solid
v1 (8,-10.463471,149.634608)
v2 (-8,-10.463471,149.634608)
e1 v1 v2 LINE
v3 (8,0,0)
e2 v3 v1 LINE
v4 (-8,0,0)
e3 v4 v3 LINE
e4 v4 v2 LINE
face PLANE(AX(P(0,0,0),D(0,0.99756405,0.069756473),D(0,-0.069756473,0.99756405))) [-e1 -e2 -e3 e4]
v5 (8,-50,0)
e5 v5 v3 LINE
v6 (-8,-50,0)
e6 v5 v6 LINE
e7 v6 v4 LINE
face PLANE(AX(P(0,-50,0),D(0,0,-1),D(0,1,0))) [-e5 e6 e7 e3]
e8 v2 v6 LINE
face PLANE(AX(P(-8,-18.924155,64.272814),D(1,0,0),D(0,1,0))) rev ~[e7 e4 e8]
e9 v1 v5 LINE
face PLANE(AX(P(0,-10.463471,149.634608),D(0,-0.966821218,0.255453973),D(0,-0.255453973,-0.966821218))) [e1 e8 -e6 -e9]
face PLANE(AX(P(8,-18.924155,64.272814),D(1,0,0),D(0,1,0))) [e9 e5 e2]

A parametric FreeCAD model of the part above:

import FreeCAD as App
import Part
import Sketcher
from FreeCAD import Vector
Q = App.Units.Quantity

doc = App.newDocument("Part")
body = doc.addObject("PartDesign::Body", "Body")

sketch1 = body.newObject("Sketcher::SketchObject", "Sketch")
sketch1.AttachmentSupport = (doc.getObject("YZ_Plane"), [""])
sketch1.MapMode = "FlatFace"
sketch1.addGeometry([
    Part.LineSegment(Vector(-50, 0, 0), Vector(0, 0, 0)),
    Part.LineSegment(Vector(0, 0, 0), Vector(-10, 150, 0)),
    Part.LineSegment(Vector(-10, 150, 0), Vector(-50, 0, 0)),
], False)
sketch1.addConstraint([
    Sketcher.Constraint("Coincident", 0, 2, 1, 1),
    Sketcher.Constraint("Coincident", 1, 2, 2, 1),
    Sketcher.Constraint("Coincident", 2, 2, 0, 1),
    Sketcher.Constraint("Horizontal", 0),
    Sketcher.Constraint("Coincident", 0, 2, -1, 1),
    Sketcher.Constraint("DistanceX", 0, 1, 0, 2, Q("50 mm")),
    Sketcher.Constraint("Angle", 1, Q("94 deg")),
    Sketcher.Constraint("Distance", 1, Q("150 mm")),
])
pad1 = body.newObject("PartDesign::Pad", "Pad")
pad1.Profile = sketch1
pad1.Length = 16
pad1.Midplane = True

doc.recompute()
